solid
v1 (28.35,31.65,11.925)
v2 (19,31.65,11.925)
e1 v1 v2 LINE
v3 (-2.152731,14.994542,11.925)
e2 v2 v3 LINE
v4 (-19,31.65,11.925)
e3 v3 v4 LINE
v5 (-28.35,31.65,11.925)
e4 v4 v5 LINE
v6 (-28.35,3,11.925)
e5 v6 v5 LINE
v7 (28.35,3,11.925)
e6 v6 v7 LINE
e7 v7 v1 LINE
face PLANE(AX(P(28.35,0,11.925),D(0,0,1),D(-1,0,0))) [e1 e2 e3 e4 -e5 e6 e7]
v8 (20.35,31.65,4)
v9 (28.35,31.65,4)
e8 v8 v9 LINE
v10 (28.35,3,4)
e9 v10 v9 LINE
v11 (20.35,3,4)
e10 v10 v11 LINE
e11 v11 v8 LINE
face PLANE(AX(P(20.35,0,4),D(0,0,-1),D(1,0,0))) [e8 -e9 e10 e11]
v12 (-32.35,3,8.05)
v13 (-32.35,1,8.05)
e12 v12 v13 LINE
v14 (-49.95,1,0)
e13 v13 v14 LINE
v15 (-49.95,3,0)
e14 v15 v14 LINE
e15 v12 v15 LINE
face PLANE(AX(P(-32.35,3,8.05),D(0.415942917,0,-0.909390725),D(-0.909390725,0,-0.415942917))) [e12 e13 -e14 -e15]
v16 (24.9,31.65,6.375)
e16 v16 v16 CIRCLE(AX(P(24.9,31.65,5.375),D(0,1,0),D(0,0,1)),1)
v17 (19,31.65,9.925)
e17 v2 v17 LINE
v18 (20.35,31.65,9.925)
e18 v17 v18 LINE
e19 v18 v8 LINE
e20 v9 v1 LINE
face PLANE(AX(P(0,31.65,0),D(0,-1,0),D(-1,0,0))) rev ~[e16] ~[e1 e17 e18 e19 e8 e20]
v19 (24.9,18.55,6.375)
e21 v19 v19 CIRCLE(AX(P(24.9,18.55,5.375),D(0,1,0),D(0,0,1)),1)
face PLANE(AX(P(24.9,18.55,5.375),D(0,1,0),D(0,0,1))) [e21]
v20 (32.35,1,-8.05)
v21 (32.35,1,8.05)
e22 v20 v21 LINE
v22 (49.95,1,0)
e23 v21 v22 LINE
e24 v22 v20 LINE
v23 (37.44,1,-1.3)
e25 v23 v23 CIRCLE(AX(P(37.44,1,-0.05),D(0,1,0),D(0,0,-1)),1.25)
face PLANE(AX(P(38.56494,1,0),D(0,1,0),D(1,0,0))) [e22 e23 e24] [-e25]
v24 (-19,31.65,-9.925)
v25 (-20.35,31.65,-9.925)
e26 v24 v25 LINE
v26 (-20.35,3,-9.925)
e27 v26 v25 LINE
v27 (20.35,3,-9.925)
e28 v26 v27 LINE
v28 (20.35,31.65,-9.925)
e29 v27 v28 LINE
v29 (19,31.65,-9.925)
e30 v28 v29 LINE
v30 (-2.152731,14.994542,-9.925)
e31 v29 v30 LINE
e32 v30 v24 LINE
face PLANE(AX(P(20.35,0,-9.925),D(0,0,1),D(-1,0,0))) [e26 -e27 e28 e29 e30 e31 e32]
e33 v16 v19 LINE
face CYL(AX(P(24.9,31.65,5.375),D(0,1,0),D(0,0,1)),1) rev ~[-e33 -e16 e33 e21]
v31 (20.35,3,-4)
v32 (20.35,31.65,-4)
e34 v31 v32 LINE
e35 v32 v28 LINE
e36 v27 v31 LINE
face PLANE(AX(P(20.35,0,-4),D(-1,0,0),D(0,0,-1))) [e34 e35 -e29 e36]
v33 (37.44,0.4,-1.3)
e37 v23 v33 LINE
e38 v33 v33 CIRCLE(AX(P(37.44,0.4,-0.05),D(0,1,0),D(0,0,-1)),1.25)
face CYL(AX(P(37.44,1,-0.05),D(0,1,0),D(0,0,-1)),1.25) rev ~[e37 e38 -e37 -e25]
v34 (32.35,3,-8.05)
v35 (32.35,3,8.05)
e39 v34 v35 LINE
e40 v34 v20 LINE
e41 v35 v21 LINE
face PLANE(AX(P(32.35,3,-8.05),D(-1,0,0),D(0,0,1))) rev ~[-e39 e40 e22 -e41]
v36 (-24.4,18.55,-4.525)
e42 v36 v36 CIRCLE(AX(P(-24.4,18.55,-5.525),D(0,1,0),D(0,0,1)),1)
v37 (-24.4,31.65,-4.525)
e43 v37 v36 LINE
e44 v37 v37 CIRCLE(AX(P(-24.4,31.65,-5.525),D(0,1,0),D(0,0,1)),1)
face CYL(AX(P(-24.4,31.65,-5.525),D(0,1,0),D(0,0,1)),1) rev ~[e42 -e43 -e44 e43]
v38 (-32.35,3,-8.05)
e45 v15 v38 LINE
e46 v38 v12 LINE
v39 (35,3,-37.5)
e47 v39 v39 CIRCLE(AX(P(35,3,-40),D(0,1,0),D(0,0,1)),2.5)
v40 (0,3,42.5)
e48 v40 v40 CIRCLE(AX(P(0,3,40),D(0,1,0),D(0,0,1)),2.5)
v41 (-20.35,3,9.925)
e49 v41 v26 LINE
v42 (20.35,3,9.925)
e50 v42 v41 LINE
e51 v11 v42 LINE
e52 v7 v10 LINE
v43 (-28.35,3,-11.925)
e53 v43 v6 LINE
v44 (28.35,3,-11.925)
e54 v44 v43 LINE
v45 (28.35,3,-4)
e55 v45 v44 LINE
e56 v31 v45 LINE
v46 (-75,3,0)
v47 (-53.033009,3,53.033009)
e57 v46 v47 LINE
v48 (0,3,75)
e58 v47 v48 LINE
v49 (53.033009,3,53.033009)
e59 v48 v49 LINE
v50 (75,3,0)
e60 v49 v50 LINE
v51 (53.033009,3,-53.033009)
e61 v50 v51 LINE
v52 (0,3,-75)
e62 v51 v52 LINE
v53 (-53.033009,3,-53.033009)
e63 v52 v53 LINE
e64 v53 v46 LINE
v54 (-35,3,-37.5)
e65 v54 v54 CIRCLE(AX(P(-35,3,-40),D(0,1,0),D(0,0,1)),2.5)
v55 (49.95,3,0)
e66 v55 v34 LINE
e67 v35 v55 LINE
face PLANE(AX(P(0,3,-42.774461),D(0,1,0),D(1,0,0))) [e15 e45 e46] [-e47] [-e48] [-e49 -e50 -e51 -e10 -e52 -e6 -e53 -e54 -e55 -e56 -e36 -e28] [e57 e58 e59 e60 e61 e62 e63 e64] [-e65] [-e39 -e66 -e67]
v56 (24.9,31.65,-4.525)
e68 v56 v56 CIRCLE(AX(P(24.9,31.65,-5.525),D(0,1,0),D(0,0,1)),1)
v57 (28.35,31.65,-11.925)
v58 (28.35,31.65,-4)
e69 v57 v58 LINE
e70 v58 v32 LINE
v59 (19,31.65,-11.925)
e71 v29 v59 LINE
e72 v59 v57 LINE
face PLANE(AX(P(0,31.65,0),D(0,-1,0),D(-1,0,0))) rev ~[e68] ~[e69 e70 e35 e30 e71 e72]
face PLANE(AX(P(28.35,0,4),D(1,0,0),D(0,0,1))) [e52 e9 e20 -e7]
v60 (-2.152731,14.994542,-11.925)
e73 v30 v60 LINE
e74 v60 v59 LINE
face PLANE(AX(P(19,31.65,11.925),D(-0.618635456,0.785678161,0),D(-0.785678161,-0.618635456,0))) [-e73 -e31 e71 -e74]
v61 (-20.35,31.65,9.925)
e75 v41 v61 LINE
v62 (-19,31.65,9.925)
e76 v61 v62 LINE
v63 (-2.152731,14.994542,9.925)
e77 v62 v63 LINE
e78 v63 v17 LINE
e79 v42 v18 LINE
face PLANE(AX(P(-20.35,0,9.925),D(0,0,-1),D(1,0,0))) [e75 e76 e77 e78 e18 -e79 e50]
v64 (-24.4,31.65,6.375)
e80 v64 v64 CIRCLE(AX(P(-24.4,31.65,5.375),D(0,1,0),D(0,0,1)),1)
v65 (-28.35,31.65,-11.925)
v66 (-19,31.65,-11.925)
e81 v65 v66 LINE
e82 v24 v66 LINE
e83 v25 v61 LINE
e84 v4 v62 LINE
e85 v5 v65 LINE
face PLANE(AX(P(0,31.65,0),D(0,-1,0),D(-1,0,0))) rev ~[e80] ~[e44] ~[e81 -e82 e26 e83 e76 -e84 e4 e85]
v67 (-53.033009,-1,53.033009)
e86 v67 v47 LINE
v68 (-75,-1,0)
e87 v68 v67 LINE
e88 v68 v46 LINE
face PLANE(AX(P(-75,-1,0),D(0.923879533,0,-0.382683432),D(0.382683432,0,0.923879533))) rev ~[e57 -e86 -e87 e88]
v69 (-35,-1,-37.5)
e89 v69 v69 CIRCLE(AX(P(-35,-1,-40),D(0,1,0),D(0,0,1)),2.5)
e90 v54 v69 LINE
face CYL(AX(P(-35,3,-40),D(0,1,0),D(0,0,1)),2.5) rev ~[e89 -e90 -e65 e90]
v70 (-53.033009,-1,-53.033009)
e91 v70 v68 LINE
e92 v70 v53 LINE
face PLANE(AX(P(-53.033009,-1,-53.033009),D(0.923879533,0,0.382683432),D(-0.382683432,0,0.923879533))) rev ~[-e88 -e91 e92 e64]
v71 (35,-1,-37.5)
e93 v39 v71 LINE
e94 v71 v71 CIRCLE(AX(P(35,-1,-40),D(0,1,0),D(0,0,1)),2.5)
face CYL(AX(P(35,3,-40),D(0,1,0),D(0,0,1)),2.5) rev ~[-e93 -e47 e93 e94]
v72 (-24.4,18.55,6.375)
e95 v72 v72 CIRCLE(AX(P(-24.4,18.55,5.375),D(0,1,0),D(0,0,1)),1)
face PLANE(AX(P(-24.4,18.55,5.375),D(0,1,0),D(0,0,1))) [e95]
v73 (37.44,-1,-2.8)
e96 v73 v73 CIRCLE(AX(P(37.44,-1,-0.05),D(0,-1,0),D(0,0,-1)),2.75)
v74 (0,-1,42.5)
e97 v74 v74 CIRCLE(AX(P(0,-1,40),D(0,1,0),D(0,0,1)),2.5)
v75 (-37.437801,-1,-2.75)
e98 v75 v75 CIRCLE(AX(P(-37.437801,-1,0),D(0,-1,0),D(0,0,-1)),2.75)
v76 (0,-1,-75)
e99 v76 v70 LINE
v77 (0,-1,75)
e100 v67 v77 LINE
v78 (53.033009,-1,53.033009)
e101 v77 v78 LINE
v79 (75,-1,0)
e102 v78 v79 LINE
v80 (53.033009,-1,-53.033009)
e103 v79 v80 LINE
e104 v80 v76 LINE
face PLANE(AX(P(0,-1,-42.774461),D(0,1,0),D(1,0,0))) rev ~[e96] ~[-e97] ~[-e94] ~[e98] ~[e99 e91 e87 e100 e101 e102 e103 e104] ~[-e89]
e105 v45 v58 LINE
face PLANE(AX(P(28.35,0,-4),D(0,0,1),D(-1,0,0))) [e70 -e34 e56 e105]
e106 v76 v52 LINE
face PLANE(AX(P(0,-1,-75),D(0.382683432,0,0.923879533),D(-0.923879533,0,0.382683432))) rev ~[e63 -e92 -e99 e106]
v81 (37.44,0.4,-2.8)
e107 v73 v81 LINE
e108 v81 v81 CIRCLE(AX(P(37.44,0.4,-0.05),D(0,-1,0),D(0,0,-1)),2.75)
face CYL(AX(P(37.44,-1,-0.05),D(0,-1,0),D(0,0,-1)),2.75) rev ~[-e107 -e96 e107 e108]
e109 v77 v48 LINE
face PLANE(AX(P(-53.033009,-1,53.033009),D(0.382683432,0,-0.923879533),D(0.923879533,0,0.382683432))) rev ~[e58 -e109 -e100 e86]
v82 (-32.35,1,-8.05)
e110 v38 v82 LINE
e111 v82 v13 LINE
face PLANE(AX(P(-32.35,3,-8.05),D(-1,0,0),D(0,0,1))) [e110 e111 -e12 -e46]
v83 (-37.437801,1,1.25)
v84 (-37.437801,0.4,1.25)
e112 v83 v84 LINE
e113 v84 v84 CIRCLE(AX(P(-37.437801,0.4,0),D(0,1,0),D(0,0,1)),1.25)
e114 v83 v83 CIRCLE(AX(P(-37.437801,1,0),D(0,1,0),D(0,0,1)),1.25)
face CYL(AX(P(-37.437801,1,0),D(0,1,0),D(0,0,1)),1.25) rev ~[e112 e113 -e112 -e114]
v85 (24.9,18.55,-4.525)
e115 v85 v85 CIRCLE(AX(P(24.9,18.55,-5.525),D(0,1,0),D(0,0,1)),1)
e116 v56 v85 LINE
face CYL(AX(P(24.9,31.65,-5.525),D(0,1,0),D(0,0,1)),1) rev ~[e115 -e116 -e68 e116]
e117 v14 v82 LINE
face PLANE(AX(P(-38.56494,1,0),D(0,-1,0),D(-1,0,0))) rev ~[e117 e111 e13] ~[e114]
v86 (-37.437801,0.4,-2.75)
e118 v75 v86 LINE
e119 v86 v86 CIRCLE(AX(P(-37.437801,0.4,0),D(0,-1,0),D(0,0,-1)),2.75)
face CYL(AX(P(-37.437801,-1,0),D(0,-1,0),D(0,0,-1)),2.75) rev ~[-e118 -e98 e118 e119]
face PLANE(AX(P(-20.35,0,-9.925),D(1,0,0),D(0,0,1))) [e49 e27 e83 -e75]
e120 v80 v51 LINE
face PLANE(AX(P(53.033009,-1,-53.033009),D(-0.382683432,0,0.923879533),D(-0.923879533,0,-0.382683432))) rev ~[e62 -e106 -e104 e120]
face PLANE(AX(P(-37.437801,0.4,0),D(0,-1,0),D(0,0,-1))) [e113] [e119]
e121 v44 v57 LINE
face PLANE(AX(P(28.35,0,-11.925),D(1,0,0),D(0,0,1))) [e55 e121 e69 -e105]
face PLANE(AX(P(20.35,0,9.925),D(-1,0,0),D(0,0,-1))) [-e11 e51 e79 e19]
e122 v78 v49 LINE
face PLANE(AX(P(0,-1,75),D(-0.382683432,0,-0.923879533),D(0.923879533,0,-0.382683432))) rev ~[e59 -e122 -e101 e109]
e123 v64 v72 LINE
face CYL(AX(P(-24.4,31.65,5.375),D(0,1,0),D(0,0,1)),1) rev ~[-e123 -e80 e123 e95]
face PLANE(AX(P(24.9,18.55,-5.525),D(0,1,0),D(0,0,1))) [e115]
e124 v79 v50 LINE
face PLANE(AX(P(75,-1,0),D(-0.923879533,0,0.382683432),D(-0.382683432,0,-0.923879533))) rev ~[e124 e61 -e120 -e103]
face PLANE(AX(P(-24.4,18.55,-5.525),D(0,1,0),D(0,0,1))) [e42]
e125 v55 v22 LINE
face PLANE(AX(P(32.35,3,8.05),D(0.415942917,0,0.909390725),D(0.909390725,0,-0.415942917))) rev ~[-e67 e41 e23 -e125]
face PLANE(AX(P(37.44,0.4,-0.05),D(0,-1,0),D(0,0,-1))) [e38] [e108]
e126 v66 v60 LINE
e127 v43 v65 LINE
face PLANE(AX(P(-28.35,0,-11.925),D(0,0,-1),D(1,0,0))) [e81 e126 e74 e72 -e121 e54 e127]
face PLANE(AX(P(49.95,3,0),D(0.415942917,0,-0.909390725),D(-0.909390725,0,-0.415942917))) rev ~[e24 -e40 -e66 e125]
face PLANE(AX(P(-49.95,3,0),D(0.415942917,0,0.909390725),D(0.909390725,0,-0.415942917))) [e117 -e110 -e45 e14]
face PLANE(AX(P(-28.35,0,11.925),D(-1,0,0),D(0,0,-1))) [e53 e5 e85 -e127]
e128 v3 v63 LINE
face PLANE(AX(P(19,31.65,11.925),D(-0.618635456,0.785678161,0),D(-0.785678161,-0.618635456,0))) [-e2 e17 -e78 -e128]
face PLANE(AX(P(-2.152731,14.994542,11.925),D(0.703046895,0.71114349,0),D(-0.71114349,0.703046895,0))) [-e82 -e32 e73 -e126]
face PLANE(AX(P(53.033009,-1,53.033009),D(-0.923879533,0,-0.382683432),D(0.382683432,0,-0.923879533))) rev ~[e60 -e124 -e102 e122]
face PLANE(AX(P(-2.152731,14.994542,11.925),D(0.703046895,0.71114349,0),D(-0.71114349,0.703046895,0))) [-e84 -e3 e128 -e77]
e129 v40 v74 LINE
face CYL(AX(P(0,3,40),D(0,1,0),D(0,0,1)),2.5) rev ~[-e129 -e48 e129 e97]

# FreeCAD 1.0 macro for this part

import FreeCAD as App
import Part
import Sketcher

V = App.Vector
Q = App.Units.Quantity


def add_polygon(sketch, points):
    """Adds a closed chain of lines whose ends are joined by coincident constraints."""
    first, n = sketch.GeometryCount, len(points)
    for a, b in zip(points, points[1:] + points[:1]):
        sketch.addGeometry(Part.LineSegment(App.Vector(*a, 0), App.Vector(*b, 0)), False)
    for i in range(n):
        sketch.addConstraint(Sketcher.Constraint("Coincident", first + i, 2, first + (i + 1) % n, 1))

doc = App.newDocument("Part")
body = doc.addObject("PartDesign::Body", "Body")

sketch1 = body.newObject("Sketcher::SketchObject", "Sketch")
sketch1.AttachmentSupport = (doc.getObject("XZ_Plane"), [""])
sketch1.MapMode = "FlatFace"
add_polygon(sketch1, [(-53.033009, 53.033009), (0, 75), (53.033009, 53.033009), (75, 0), (53.033009, -53.033009), (0, -75), (-53.033009, -53.033009), (-75, 0)])
sketch1.addConstraint(Sketcher.Constraint("Symmetric", 0, 2, 4, 2, -1, 1))
sketch1.addConstraint(Sketcher.Constraint("Symmetric", 1, 2, 5, 2, -1, 1))
sketch1.addConstraint(Sketcher.Constraint("Symmetric", 2, 2, 6, 2, -1, 1))
sketch1.addConstraint(Sketcher.Constraint("Symmetric", 3, 2, 7, 2, -1, 1))
sketch1.addConstraint(Sketcher.Constraint("Symmetric", 3, 2, 5, 2, -2))
sketch1.addConstraint(Sketcher.Constraint("PointOnObject", 0, 2, -2))
sketch1.addConstraint(Sketcher.Constraint("PointOnObject", 2, 2, -1))
sketch1.addConstraint(Sketcher.Constraint("Perpendicular", 0, 2))
sketch1.addConstraint(Sketcher.Constraint("Equal", 1, 2))
sketch1.addConstraint(Sketcher.Constraint("DistanceY", -1, 1, 0, 2, 75.0))
sketch1.addConstraint(Sketcher.Constraint("Angle", 0, Q("22.5 deg")))
pad1 = body.newObject("PartDesign::Pad", "Pad")
pad1.Profile = sketch1
pad1.Type = "TwoLengths"
pad1.Length = 3
pad1.Length2 = 1
pad1.Reversed = True

sketch2 = body.newObject("Sketcher::SketchObject", "Sketch001")
sketch2.AttachmentSupport = (doc.getObject("XZ_Plane"), [""])
sketch2.MapMode = "FlatFace"
add_polygon(sketch2, [(28.35, 4), (20.35, 4), (20.35, 9.925), (-20.35, 9.925), (-20.35, -9.925), (20.35, -9.925), (20.35, -4), (28.35, -4), (28.35, -11.925), (-28.35, -11.925), (-28.35, 11.925), (28.35, 11.925)])
sketch2.addConstraint(Sketcher.Constraint("Horizontal", 0))
sketch2.addConstraint(Sketcher.Constraint("Vertical", 1))
sketch2.addConstraint(Sketcher.Constraint("Horizontal", 2))
sketch2.addConstraint(Sketcher.Constraint("Vertical", 3))
sketch2.addConstraint(Sketcher.Constraint("Horizontal", 4))
sketch2.addConstraint(Sketcher.Constraint("Vertical", 5))
sketch2.addConstraint(Sketcher.Constraint("Horizontal", 6))
sketch2.addConstraint(Sketcher.Constraint("Vertical", 7))
sketch2.addConstraint(Sketcher.Constraint("Horizontal", 8))
sketch2.addConstraint(Sketcher.Constraint("Vertical", 9))
sketch2.addConstraint(Sketcher.Constraint("Horizontal", 10))
sketch2.addConstraint(Sketcher.Constraint("Vertical", 11))
sketch2.addConstraint(Sketcher.Constraint("Symmetric", 1, 2, 3, 2, -1, 1))
sketch2.addConstraint(Sketcher.Constraint("Symmetric", 7, 2, 9, 2, -1, 1))
sketch2.addConstraint(Sketcher.Constraint("Symmetric", 0, 2, 5, 2, -1))
sketch2.addConstraint(Sketcher.Constraint("Vertical", 7, 2, 10, 2))
sketch2.addConstraint(Sketcher.Constraint("DistanceX", 0, 2, 0, 1, 8.0))
sketch2.addConstraint(Sketcher.Constraint("DistanceX", 2, 2, 2, 1, 40.7))
sketch2.addConstraint(Sketcher.Constraint("DistanceY", -1, 1, 0, 2, 4.0))
sketch2.addConstraint(Sketcher.Constraint("DistanceY", 7, 2, 4, 2, 2.0))
sketch2.addConstraint(Sketcher.Constraint("DistanceY", 3, 2, 3, 1, 19.85))
pad2 = body.newObject("PartDesign::Pad", "Pad001")
pad2.Profile = sketch2
pad2.Length = 31.65
pad2.Reversed = True

sketch3 = body.newObject("Sketcher::SketchObject", "Sketch002")
sketch3.AttachmentSupport = (doc.getObject("XY_Plane"), [""])
sketch3.MapMode = "FlatFace"
sketch3.AttachmentOffset = App.Placement(V(0, 0, 11.925), App.Rotation())
add_polygon(sketch3, [(19, 31.65), (-19, 31.65), (-2.152731, 14.994542)])
sketch3.addConstraint(Sketcher.Constraint("Horizontal", 0))
sketch3.addConstraint(Sketcher.Constraint("DistanceX", 0, 2, 0, 1, 38.0))
sketch3.addConstraint(Sketcher.Constraint("DistanceX", 0, 2, -1, 1, 19.0))
sketch3.addConstraint(Sketcher.Constraint("DistanceY", -1, 1, 0, 2, 31.65))
sketch3.addConstraint(Sketcher.Constraint("DistanceX", 1, 2, -1, 1, 2.152731))
sketch3.addConstraint(Sketcher.Constraint("Distance", 1, 23.690394))
pocket1 = body.newObject("PartDesign::Pocket", "Pocket")
pocket1.Profile = sketch3
pocket1.Length = 28.65

sketch4 = body.newObject("Sketcher::SketchObject", "Sketch003")
sketch4.AttachmentSupport = (doc.getObject("XZ_Plane"), [""])
sketch4.MapMode = "FlatFace"
sketch4.AttachmentOffset = App.Placement(V(0, 0, -3), App.Rotation())
sketch4.addGeometry(Part.Circle(V(35, -40, 0), V(0, 0, 1), 2.5), False)
sketch4.addGeometry(Part.Circle(V(-35, -40, 0), V(0, 0, 1), 2.5), False)
sketch4.addGeometry(Part.Circle(V(0, 40, 0), V(0, 0, 1), 2.5), False)
sketch4.addConstraint(Sketcher.Constraint("Equal", 0, 1))
sketch4.addConstraint(Sketcher.Constraint("Equal", 1, 2))
sketch4.addConstraint(Sketcher.Constraint("Symmetric", 0, 3, 1, 3, -2))
sketch4.addConstraint(Sketcher.Constraint("PointOnObject", 2, 3, -2))
sketch4.addConstraint(Sketcher.Constraint("Diameter", 0, 5.0))
sketch4.addConstraint(Sketcher.Constraint("DistanceX", -1, 1, 0, 3, 35.0))
sketch4.addConstraint(Sketcher.Constraint("DistanceY", 0, 3, -1, 1, 40.0))
sketch4.addConstraint(Sketcher.Constraint("DistanceY", -1, 1, 2, 3, 40.0))
pocket2 = body.newObject("PartDesign::Pocket", "Pocket001")
pocket2.Profile = sketch4
pocket2.Type = "ThroughAll"
pocket2.Reversed = True

sketch5 = body.newObject("Sketcher::SketchObject", "Sketch004")
sketch5.AttachmentSupport = (doc.getObject("XZ_Plane"), [""])
sketch5.MapMode = "FlatFace"
sketch5.AttachmentOffset = App.Placement(V(0, 0, -3), App.Rotation())
add_polygon(sketch5, [(-32.35, 8.05), (-32.35, -8.05), (-49.95, 0)])
add_polygon(sketch5, [(32.35, 8.05), (49.95, 0), (32.35, -8.05)])
sketch5.addConstraint(Sketcher.Constraint("Vertical", 0))
sketch5.addConstraint(Sketcher.Constraint("Vertical", 5))
sketch5.addConstraint(Sketcher.Constraint("Symmetric", 1, 2, 3, 2, -1, 1))
sketch5.addConstraint(Sketcher.Constraint("Symmetric", 2, 2, 4, 2, -1, 1))
sketch5.addConstraint(Sketcher.Constraint("PointOnObject", 1, 2, -1))
sketch5.addConstraint(Sketcher.Constraint("Parallel", 1, 3))
sketch5.addConstraint(Sketcher.Constraint("Horizontal", 0, 2, 4, 2))
sketch5.addConstraint(Sketcher.Constraint("DistanceY", 0, 2, 0, 1, 16.1))
sketch5.addConstraint(Sketcher.Constraint("DistanceX", 1, 2, 0, 2, 17.6))
sketch5.addConstraint(Sketcher.Constraint("DistanceX", 0, 2, 3, 2, 82.3))
pocket3 = body.newObject("PartDesign::Pocket", "Pocket002")
pocket3.Profile = sketch5
pocket3.Length = 2
pocket3.Reversed = True

sketch6 = body.newObject("Sketcher::SketchObject", "Sketch005")
sketch6.AttachmentSupport = (doc.getObject("XZ_Plane"), [""])
sketch6.MapMode = "FlatFace"
sketch6.AttachmentOffset = App.Placement(V(0, 0, -31.65), App.Rotation())
sketch6.addGeometry(Part.Circle(V(-24.4, 5.375, 0), V(0, 0, 1), 1), False)
sketch6.addGeometry(Part.Circle(V(-24.4, -5.525, 0), V(0, 0, 1), 1), False)
sketch6.addGeometry(Part.Circle(V(24.9, -5.525, 0), V(0, 0, 1), 1), False)
sketch6.addGeometry(Part.Circle(V(24.9, 5.375, 0), V(0, 0, 1), 1), False)
sketch6.addConstraint(Sketcher.Constraint("Equal", 0, 1))
sketch6.addConstraint(Sketcher.Constraint("Equal", 1, 2))
sketch6.addConstraint(Sketcher.Constraint("Equal", 2, 3))
sketch6.addConstraint(Sketcher.Constraint("Horizontal", 1, 3, 2, 3))
sketch6.addConstraint(Sketcher.Constraint("Horizontal", 0, 3, 3, 3))
sketch6.addConstraint(Sketcher.Constraint("Vertical", 0, 3, 1, 3))
sketch6.addConstraint(Sketcher.Constraint("Vertical", 2, 3, 3, 3))
sketch6.addConstraint(Sketcher.Constraint("Diameter", 0, 2.0))
sketch6.addConstraint(Sketcher.Constraint("DistanceX", 0, 3, -1, 1, 24.4))
sketch6.addConstraint(Sketcher.Constraint("DistanceX", -1, 1, 2, 3, 24.9))
sketch6.addConstraint(Sketcher.Constraint("DistanceY", 1, 3, 0, 3, 10.9))
sketch6.addConstraint(Sketcher.Constraint("DistanceY", -1, 1, 0, 3, 5.375))
pocket4 = body.newObject("PartDesign::Pocket", "Pocket003")
pocket4.Profile = sketch6
pocket4.Length = 13.1
pocket4.Reversed = True

sketch7 = body.newObject("Sketcher::SketchObject", "Sketch006")
sketch7.AttachmentSupport = (doc.getObject("XZ_Plane"), [""])
sketch7.MapMode = "FlatFace"
sketch7.AttachmentOffset = App.Placement(V(0, 0, -1), App.Rotation())
sketch7.addGeometry(Part.Circle(V(-37.437801, 0, 0), V(0, 0, 1), 1.25), False)
sketch7.addGeometry(Part.Circle(V(37.44, -0.05, 0), V(0, 0, 1), 1.25), False)
sketch7.addConstraint(Sketcher.Constraint("Equal", 0, 1))
sketch7.addConstraint(Sketcher.Constraint("PointOnObject", 0, 3, -1))
sketch7.addConstraint(Sketcher.Constraint("Diameter", 0, 2.5))
sketch7.addConstraint(Sketcher.Constraint("DistanceX", -1, 1, 1, 3, 37.44))
sketch7.addConstraint(Sketcher.Constraint("DistanceY", 1, 3, -1, 1, 0.05))
sketch7.addConstraint(Sketcher.Constraint("DistanceX", 0, 3, -1, 1, 37.437801))
pocket5 = body.newObject("PartDesign::Pocket", "Pocket004")
pocket5.Profile = sketch7
pocket5.Type = "ThroughAll"
pocket5.Reversed = True

sketch8 = body.newObject("Sketcher::SketchObject", "Sketch007")
sketch8.AttachmentSupport = (doc.getObject("XZ_Plane"), [""])
sketch8.MapMode = "FlatFace"
sketch8.AttachmentOffset = App.Placement(V(0, 0, 1), App.Rotation())
sketch8.addGeometry(Part.Circle(V(-37.437801, 0, 0), V(0, 0, 1), 2.75), False)
sketch8.addGeometry(Part.Circle(V(37.44, -0.05, 0), V(0, 0, 1), 2.75), False)
sketch8.addConstraint(Sketcher.Constraint("Equal", 0, 1))
sketch8.addConstraint(Sketcher.Constraint("PointOnObject", 0, 3, -1))
sketch8.addConstraint(Sketcher.Constraint("Diameter", 0, 5.5))
sketch8.addConstraint(Sketcher.Constraint("DistanceX", -1, 1, 1, 3, 37.44))
sketch8.addConstraint(Sketcher.Constraint("DistanceY", 1, 3, -1, 1, 0.05))
sketch8.addConstraint(Sketcher.Constraint("DistanceX", 0, 3, -1, 1, 37.437801))
pocket6 = body.newObject("PartDesign::Pocket", "Pocket005")
pocket6.Profile = sketch8
pocket6.Length = 1.4

doc.recompute()
